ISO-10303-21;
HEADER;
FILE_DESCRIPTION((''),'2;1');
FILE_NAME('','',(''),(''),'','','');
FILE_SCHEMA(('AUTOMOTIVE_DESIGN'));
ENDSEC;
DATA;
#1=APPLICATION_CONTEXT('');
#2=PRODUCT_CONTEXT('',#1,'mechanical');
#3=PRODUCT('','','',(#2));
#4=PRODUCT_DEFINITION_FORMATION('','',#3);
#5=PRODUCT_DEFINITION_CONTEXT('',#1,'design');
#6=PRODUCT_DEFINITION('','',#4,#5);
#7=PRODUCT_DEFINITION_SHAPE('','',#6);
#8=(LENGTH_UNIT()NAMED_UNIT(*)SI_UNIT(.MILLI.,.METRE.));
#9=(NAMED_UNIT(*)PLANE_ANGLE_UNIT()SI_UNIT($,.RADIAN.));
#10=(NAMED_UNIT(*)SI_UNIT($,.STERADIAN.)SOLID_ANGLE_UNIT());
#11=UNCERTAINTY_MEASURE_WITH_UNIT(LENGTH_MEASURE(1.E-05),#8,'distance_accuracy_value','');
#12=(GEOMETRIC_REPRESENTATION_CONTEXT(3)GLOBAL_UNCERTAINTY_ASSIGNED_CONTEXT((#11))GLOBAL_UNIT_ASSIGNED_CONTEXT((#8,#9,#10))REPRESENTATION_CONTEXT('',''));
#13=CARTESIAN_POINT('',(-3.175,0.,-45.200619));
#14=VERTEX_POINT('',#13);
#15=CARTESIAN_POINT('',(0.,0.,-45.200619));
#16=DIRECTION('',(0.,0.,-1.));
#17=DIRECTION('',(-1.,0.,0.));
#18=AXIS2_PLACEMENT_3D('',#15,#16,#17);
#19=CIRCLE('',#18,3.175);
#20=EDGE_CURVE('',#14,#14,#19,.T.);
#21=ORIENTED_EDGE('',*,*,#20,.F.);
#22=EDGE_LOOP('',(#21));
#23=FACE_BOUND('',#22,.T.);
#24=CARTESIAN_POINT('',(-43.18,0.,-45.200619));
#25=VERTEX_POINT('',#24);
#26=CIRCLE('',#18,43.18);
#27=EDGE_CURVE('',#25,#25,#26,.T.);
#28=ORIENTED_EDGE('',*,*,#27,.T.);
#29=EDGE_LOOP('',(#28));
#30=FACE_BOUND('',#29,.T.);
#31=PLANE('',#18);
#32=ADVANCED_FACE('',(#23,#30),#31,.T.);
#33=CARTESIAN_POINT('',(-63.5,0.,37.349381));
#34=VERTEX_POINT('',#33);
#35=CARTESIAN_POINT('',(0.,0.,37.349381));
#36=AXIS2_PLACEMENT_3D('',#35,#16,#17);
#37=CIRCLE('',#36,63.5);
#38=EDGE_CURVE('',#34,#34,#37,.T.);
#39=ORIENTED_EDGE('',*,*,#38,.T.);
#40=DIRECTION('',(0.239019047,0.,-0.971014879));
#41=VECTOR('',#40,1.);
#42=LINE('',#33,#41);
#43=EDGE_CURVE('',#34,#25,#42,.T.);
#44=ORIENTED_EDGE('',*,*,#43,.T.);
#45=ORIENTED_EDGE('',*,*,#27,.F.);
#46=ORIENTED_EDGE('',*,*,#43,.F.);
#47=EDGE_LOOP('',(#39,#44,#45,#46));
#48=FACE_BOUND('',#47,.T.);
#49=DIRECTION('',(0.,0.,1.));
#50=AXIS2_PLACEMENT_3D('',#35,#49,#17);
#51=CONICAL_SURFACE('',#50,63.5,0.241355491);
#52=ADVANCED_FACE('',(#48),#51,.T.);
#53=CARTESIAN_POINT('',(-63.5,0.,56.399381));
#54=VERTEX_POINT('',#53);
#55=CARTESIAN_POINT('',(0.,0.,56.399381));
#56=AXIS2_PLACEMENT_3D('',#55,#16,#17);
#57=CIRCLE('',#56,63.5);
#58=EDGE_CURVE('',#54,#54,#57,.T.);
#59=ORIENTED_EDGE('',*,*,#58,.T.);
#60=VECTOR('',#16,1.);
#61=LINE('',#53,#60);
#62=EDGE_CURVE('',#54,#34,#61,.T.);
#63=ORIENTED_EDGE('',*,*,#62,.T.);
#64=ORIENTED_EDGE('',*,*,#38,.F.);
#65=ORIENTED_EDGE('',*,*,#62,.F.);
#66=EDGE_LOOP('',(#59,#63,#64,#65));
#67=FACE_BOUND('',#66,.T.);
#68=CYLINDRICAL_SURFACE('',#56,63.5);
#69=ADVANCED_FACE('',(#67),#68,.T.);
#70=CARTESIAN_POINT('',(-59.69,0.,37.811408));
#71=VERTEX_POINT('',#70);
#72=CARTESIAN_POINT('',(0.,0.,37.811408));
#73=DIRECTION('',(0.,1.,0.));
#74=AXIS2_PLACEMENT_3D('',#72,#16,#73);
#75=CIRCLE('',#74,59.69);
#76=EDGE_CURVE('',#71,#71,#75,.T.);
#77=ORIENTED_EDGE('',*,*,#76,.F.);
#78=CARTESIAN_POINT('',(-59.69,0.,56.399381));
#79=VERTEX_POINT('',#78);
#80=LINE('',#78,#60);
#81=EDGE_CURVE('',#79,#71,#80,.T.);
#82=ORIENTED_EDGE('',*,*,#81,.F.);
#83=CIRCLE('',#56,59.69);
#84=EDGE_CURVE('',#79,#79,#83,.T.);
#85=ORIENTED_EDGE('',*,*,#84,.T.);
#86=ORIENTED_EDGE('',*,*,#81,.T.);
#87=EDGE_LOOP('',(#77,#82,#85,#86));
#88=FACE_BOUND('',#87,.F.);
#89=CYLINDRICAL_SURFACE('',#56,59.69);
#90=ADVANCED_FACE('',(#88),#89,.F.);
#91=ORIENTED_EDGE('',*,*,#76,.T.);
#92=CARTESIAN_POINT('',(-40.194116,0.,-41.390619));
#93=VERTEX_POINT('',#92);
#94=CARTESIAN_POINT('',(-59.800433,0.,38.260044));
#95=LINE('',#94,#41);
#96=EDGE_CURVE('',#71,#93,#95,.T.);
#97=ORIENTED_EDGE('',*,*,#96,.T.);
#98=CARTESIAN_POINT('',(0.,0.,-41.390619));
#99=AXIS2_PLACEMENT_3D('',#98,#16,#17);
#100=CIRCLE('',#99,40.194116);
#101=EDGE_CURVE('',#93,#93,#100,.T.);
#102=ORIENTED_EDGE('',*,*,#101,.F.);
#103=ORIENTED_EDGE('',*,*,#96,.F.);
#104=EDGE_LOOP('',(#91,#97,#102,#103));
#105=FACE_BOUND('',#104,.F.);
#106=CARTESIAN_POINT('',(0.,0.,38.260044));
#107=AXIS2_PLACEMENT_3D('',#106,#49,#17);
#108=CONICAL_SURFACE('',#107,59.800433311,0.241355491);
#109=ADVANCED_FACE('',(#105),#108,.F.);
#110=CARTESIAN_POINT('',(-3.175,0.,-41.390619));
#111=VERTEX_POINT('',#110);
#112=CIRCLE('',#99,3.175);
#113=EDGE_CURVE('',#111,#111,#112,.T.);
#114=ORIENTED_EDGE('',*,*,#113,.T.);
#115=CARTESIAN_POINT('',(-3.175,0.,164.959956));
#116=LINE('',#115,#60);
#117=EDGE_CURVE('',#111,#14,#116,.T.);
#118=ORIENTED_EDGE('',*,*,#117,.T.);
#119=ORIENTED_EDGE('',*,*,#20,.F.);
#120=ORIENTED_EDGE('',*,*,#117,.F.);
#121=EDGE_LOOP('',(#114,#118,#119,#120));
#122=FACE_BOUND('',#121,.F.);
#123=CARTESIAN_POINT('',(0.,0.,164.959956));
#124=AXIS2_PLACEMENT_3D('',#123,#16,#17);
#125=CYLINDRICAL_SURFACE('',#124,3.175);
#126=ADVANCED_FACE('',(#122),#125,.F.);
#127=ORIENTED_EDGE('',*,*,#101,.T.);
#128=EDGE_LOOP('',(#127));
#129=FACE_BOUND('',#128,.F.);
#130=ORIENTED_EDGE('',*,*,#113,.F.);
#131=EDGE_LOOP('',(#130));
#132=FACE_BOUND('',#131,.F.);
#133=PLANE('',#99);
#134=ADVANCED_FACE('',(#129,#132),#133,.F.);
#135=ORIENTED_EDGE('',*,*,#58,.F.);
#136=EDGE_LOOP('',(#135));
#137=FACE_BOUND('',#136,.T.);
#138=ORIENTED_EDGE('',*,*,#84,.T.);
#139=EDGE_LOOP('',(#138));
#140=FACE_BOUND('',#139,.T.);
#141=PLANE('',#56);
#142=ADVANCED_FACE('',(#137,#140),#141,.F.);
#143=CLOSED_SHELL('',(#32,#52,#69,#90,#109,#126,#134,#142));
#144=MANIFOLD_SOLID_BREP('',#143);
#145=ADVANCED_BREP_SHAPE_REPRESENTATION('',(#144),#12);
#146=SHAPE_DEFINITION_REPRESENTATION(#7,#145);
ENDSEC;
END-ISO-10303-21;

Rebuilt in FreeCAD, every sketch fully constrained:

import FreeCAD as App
import Part
import Sketcher

V = App.Vector
Q = App.Units.Quantity


def faces_at(feature, points):
    """Names of the faces that lie closest to the given points."""
    faces = feature.Shape.Faces
    near = lambda p: min(range(len(faces)), key=lambda i: faces[i].distToShape(Part.Vertex(*p))[0])
    return sorted({f"Face{near(p) + 1}" for p in points})


def add_polygon(sketch, points):
    """Adds a closed chain of lines whose ends are joined by coincident constraints."""
    first, n = sketch.GeometryCount, len(points)
    for a, b in zip(points, points[1:] + points[:1]):
        sketch.addGeometry(Part.LineSegment(App.Vector(*a, 0), App.Vector(*b, 0)), False)
    for i in range(n):
        sketch.addConstraint(Sketcher.Constraint("Coincident", first + i, 2, first + (i + 1) % n, 1))

doc = App.newDocument("Part")
body = doc.addObject("PartDesign::Body", "Body")

sketch1 = body.newObject("Sketcher::SketchObject", "Sketch")
sketch1.AttachmentSupport = (doc.getObject("XZ_Plane"), [""])
sketch1.MapMode = "FlatFace"
add_polygon(sketch1, [(0, -45), (0, 56), (-64, 56), (-64, 37), (-43, -45)])
sketch1.addConstraint(Sketcher.Constraint("Vertical", 0))
sketch1.addConstraint(Sketcher.Constraint("Horizontal", 1))
sketch1.addConstraint(Sketcher.Constraint("Vertical", 2))
sketch1.addConstraint(Sketcher.Constraint("Horizontal", 4))
sketch1.addConstraint(Sketcher.Constraint("PointOnObject", 0, 2, -2))
sketch1.addConstraint(Sketcher.Constraint("DistanceY", 0, 1, 0, 2, Q("4 in")))
sketch1.addConstraint(Sketcher.Constraint("DistanceX", 1, 2, 1, 1, Q("2.5 in")))
sketch1.addConstraint(Sketcher.Constraint("DistanceX", 4, 1, 4, 2, Q("1.7 in")))
sketch1.addConstraint(Sketcher.Constraint("DistanceY", 2, 2, 2, 1, Q("0.75 in")))
sketch1.addConstraint(Sketcher.Constraint("DistanceY", -1, 1, 0, 2, 56.399381))
revolution = body.newObject("PartDesign::Revolution", "Revolution")
revolution.Profile = sketch1
revolution.ReferenceAxis = (sketch1, ["V_Axis"])
revolution.Angle = 360
doc.recompute()

thickness = body.newObject("PartDesign::Thickness", "Thickness")
thickness.Base = (revolution, faces_at(revolution, [(0, 0, 56.399)]))
thickness.Value = Q("0.15 in")
thickness.Reversed = True
thickness.Join = "Arc"

sketch2 = body.newObject("Sketcher::SketchObject", "Sketch001")
sketch2.AttachmentSupport = (doc.getObject("XY_Plane"), [""])
sketch2.MapMode = "FlatFace"
sketch2.AttachmentOffset = App.Placement(V(0, 0, -41.390619), App.Rotation())
sketch2.addGeometry(Part.Circle(V(0, 0, 0), V(0, 0, 1), 3.2), False)
sketch2.addConstraint(Sketcher.Constraint("Coincident", 0, 3, -1, 1))
sketch2.addConstraint(Sketcher.Constraint("Diameter", 0, Q("0.25 in")))
doc.recompute()
hole = body.newObject("PartDesign::Hole", "Hole")
hole.Profile = sketch2
hole.ThreadType = "None"
hole.Diameter = Q("0.25 in")
hole.DepthType = "ThroughAll"

doc.recompute()
